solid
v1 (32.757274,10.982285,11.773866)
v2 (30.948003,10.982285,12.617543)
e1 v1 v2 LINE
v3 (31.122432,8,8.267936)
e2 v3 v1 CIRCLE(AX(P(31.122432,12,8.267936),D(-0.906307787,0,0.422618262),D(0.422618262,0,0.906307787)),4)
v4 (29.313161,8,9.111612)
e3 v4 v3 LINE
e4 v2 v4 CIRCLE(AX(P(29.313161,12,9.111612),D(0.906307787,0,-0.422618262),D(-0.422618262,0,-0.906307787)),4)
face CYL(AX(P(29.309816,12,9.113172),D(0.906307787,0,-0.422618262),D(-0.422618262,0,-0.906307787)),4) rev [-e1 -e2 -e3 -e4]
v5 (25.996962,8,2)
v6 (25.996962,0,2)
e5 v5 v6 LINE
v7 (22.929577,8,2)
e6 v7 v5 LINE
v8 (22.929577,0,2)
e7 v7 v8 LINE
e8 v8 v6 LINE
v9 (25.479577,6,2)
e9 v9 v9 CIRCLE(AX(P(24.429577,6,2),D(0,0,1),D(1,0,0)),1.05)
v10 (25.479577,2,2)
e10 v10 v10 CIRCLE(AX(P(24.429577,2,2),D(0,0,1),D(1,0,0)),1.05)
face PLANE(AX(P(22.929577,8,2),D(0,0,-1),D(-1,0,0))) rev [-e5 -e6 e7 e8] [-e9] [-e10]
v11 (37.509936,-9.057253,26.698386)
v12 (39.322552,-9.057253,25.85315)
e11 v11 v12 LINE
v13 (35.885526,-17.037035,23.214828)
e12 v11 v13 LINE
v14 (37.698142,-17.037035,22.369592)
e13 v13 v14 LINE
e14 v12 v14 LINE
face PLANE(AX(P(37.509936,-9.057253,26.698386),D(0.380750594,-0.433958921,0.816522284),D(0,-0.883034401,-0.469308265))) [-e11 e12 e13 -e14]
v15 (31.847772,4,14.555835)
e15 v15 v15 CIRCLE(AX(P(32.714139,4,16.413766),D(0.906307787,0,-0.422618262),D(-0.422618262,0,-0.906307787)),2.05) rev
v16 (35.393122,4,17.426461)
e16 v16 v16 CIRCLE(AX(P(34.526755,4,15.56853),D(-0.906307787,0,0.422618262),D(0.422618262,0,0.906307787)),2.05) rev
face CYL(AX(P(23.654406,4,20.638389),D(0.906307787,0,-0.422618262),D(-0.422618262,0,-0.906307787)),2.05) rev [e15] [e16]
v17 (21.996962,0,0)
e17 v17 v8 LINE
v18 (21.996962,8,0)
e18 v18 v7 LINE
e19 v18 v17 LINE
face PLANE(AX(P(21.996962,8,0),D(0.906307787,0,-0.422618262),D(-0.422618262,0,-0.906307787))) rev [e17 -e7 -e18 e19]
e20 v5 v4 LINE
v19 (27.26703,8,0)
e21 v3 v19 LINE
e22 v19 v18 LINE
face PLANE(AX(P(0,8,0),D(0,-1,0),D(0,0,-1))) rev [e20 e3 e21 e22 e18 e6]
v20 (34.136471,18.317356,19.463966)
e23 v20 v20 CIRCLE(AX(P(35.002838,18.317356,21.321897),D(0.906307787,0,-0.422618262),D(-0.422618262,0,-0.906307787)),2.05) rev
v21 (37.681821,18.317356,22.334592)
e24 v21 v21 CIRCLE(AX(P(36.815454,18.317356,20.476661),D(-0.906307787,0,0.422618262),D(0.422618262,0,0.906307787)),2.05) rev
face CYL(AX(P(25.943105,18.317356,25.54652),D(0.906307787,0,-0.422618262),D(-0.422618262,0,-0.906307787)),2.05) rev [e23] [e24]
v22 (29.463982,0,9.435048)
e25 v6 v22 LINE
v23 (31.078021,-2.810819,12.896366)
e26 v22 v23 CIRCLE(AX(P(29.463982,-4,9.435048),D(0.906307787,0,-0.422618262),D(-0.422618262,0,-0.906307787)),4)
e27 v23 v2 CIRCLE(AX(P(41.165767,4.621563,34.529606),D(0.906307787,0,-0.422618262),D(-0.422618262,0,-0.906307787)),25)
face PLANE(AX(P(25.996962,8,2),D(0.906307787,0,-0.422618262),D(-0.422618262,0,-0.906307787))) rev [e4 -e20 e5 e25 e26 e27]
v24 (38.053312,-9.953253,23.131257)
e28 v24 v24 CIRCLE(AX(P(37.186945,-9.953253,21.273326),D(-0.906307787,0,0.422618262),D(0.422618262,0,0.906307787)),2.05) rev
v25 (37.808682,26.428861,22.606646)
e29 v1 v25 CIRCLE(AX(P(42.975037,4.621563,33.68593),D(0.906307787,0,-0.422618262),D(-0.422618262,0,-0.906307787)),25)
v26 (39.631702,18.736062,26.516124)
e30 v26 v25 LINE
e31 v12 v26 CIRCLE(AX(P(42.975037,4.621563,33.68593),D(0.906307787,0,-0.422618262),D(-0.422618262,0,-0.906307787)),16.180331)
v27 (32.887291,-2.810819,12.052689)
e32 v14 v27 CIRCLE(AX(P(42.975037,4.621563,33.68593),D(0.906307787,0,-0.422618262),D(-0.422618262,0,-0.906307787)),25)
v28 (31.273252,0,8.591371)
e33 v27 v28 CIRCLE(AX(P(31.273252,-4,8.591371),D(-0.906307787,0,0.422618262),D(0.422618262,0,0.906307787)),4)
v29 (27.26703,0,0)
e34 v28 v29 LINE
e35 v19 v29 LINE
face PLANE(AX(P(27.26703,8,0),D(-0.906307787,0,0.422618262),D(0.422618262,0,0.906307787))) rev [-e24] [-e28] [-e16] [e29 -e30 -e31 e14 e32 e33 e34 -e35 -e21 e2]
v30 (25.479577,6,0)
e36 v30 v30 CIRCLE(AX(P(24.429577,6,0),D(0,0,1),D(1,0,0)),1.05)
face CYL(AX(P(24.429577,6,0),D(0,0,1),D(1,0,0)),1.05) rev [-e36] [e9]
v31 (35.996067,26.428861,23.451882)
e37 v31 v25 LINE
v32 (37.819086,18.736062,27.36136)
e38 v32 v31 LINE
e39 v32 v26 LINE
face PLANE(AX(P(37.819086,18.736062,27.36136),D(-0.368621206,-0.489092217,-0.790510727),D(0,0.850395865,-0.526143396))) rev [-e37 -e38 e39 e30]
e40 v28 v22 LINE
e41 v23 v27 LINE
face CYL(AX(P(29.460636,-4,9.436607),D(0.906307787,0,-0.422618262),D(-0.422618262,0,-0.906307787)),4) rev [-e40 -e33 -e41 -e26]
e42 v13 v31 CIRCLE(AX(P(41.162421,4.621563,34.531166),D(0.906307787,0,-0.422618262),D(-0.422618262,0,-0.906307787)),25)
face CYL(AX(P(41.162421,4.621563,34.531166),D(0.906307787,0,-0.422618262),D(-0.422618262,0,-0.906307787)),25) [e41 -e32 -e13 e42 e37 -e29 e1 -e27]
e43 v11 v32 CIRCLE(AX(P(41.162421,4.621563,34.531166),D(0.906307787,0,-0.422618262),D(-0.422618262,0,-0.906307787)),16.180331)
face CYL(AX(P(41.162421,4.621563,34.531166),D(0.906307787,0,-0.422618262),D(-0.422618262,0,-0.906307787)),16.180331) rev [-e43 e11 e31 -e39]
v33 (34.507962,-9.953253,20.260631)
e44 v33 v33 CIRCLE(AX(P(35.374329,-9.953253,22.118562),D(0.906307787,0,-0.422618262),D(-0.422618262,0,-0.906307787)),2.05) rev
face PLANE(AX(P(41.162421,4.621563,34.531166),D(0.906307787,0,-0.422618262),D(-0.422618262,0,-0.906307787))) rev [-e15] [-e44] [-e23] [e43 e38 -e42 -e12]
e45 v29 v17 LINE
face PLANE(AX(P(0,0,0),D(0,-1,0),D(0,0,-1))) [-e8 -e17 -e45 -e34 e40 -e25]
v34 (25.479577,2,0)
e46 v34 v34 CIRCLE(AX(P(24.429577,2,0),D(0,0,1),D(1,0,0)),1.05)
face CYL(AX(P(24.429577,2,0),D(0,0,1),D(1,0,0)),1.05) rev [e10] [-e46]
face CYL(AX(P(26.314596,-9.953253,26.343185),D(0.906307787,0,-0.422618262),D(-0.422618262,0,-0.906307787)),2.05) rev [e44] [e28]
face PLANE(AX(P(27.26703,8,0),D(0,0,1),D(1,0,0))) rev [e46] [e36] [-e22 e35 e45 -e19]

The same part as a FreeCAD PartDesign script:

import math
import FreeCAD as App
import Part
import Sketcher

V = App.Vector
Q = App.Units.Quantity


def edges_at(feature, points):
    """Names of the edges that pass closest to the given points."""
    edges = feature.Shape.Edges
    near = lambda p: min(range(len(edges)), key=lambda i: edges[i].distToShape(Part.Vertex(*p))[0])
    return sorted({f"Edge{near(p) + 1}" for p in points})


def add_polygon(sketch, points):
    """Adds a closed chain of lines whose ends are joined by coincident constraints."""
    first, n = sketch.GeometryCount, len(points)
    for a, b in zip(points, points[1:] + points[:1]):
        sketch.addGeometry(Part.LineSegment(App.Vector(*a, 0), App.Vector(*b, 0)), False)
    for i in range(n):
        sketch.addConstraint(Sketcher.Constraint("Coincident", first + i, 2, first + (i + 1) % n, 1))

doc = App.newDocument("Part")
body = doc.addObject("PartDesign::Body", "Body")

# Sketch on XZ plane
sketch1 = body.newObject("Sketcher::SketchObject", "Sketch")
sketch1.AttachmentSupport = (doc.getObject("XZ_Plane"), [""])
sketch1.MapMode = "FlatFace"
add_polygon(sketch1, [(32.8, 16.5), (34.5, 15.5), (27.3, 0), (22, 0), (22.9, 2), (26, 2)])  # lines 0-5
sketch1.addConstraint([
    Sketcher.Constraint("Horizontal", 2),
    Sketcher.Constraint("Horizontal", 4),
    Sketcher.Constraint("PointOnObject", 1, 2, -1),
    Sketcher.Constraint("Parallel", 1, 3),
    Sketcher.Constraint("Parallel", 3, 5),
    Sketcher.Constraint("Angle", 1, Q("-115 deg")),
    Sketcher.Constraint("Distance", 0, Q("2 mm")),
    Sketcher.Constraint("DistanceY", -1, 1, 3, 2, Q("2 mm")),
    Sketcher.Constraint("DistanceX", 2, 2, 4, 2, Q("4 mm")),
    Sketcher.Constraint("DistanceX", 4, 2, 5, 2, Q("6.763199 mm")),
    Sketcher.Constraint("DistanceX", 2, 2, 2, 1, Q("5.270068 mm")),
    Sketcher.Constraint("DistanceX", -1, 1, 1, 2, Q("27.26703 mm")),
])
pad1 = body.newObject("PartDesign::Pad", "Pad")
pad1.Profile = sketch1
pad1.Length = 8
pad1.Reversed = True

# Sketch on an angled plane
sketch2 = body.newObject("Sketcher::SketchObject", "Sketch001")
sketch2.Placement = App.Placement(V(22.39697, 0, -10.443878), App.Rotation(V(-0.422618262, 0, -0.906307787), V(0, 1, 0), V(0.906307787, 0, -0.422618262), "ZXY"))
sketch2.addGeometry([
    Part.LineSegment(V(-36, 26, 0), V(-41, 19, 0)),
    Part.ArcOfCircle(Part.Circle(V(-49, 5, 0), V(0, 0, 1), 16), math.radians(-58), math.radians(61)),
    Part.LineSegment(V(-40, -9, 0), V(-36, -17, 0)),
    Part.ArcOfCircle(Part.Circle(V(-49, 5, 0), V(0, 0, 1), 25), math.radians(-60), math.radians(61)),
], False)
sketch2.addConstraint([
    Sketcher.Constraint("Coincident", 0, 2, 1, 2),
    Sketcher.Constraint("Coincident", 1, 1, 2, 1),
    Sketcher.Constraint("Coincident", 2, 2, 3, 1),
    Sketcher.Constraint("Coincident", 3, 2, 0, 1),
    Sketcher.Constraint("Coincident", 3, 3, 1, 3),
    Sketcher.Constraint("Radius", 3, Q("25 mm")),
    Sketcher.Constraint("Radius", 1, Q("16.180331 mm")),
    Sketcher.Constraint("DistanceY", 3, 3, 0, 2, Q("14.1145 mm")),
    Sketcher.Constraint("DistanceY", 2, 2, 3, 3, Q("21.658598 mm")),
    Sketcher.Constraint("DistanceY", 0, 2, 3, 2, Q("7.692798 mm")),
    Sketcher.Constraint("DistanceX", 0, 2, -1, 1, Q("40.78085 mm")),
    Sketcher.Constraint("DistanceX", 1, 1, -1, 1, Q("40.049339 mm")),
    Sketcher.Constraint("DistanceY", -1, 1, 3, 2, Q("26.428861 mm")),
])
pad2 = body.newObject("PartDesign::Pad", "Pad001")
pad2.Profile = sketch2
pad2.Length = 2
pad2.Reversed = True

# Sketch on an angled plane
sketch3 = body.newObject("Sketcher::SketchObject", "Sketch002")
sketch3.Placement = App.Placement(V(20.587699, 0, -9.600202), App.Rotation(V(0.422618262, 0, 0.906307787), V(0, 1, 0), V(-0.906307787, 0, 0.422618262), "ZXY"))
sketch3.addGeometry([
    Part.Circle(V(28.7, 4, 0), V(0, 0, 1), 2),  # 0
    Part.Circle(V(34.1, 18.3, 0), V(0, 0, 1), 2),  # 1
    Part.Circle(V(48.1, 24.6, 0), V(0, 0, 1), 2),  # 2
    Part.Circle(V(62.4, 19.2, 0), V(0, 0, 1), 2),  # 3
    Part.Circle(V(68.7, 5.2, 0), V(0, 0, 1), 2),  # 4
    Part.Circle(V(63.3, -9.1, 0), V(0, 0, 1), 2),  # 5
    Part.Circle(V(49.3, -15.4, 0), V(0, 0, 1), 2),  # 6
    Part.Circle(V(35, -10, 0), V(0, 0, 1), 2),  # 7
], False)
sketch3.addConstraint([
    Sketcher.Constraint("Equal", 0, 1),
    Sketcher.Constraint("Equal", 1, 2),
    Sketcher.Constraint("Equal", 2, 3),
    Sketcher.Constraint("Equal", 3, 4),
    Sketcher.Constraint("Equal", 4, 5),
    Sketcher.Constraint("Equal", 5, 6),
    Sketcher.Constraint("Equal", 6, 7),
    Sketcher.Constraint("Diameter", 0, Q("4.1 mm")),
    Sketcher.Constraint("DistanceY", -1, 1, 0, 3, Q("4 mm")),
    Sketcher.Constraint("DistanceY", -1, 1, 2, 3, Q("24.611902 mm")),
    Sketcher.Constraint("DistanceX", 2, 3, 4, 3, Q("20.611902 mm")),
    Sketcher.Constraint("DistanceY", 6, 3, 4, 3, Q("20.611902 mm")),
    Sketcher.Constraint("DistanceX", 0, 3, 6, 3, Q("20.611902 mm")),
    Sketcher.Constraint("DistanceX", -1, 1, 1, 3, Q("34.11704 mm")),
    Sketcher.Constraint("DistanceX", -1, 1, 3, 3, Q("62.387649 mm")),
    Sketcher.Constraint("DistanceY", -1, 1, 3, 3, Q("19.196378 mm")),
    Sketcher.Constraint("DistanceX", -1, 1, 5, 3, Q("63.266672 mm")),
    Sketcher.Constraint("DistanceY", 5, 3, -1, 1, Q("9.07423 mm")),
    Sketcher.Constraint("DistanceX", -1, 1, 6, 3, Q("49.313419 mm")),
    Sketcher.Constraint("DistanceY", 4, 3, 1, 3, Q("13.07423 mm")),
    Sketcher.Constraint("DistanceX", 0, 3, 4, 3, Q("39.980678 mm")),
    Sketcher.Constraint("DistanceX", 7, 3, 5, 3, Q("28.270609 mm")),
    Sketcher.Constraint("DistanceY", 7, 3, 1, 3, Q("28.270609 mm")),
    Sketcher.Constraint("DistanceY", -1, 1, 1, 3, Q("18.317356 mm")),
])
pocket1 = body.newObject("PartDesign::Pocket", "Pocket")
pocket1.Profile = sketch3
pocket1.Type = "ThroughAll"
pocket1.Midplane = True
doc.recompute()

fillet = body.newObject("PartDesign::Fillet", "Fillet")
fillet.Base = (pocket1, edges_at(pocket1, [(31.687, 0, 11.841), (31.602, 8, 11.658)]))
fillet.Radius = 4

# Sketch on XY plane
sketch4 = body.newObject("Sketcher::SketchObject", "Sketch003")
sketch4.AttachmentSupport = (doc.getObject("XY_Plane"), [""])
sketch4.MapMode = "FlatFace"
sketch4.AttachmentOffset = App.Placement(V(0, 0, 2), App.Rotation())
sketch4.addGeometry([
    Part.Circle(V(24.4, 6, 0), V(0, 0, 1), 1.1),
    Part.Circle(V(24.4, 2, 0), V(0, 0, 1), 1.1),
], False)
sketch4.addConstraint([
    Sketcher.Constraint("Equal", 0, 1),
    Sketcher.Constraint("Vertical", 0, 3, 1, 3),
    Sketcher.Constraint("Diameter", 0, Q("2.1 mm")),
    Sketcher.Constraint("DistanceY", -1, 1, 0, 3, Q("6 mm")),
    Sketcher.Constraint("DistanceY", -1, 1, 1, 3, Q("2 mm")),
    Sketcher.Constraint("DistanceX", -1, 1, 0, 3, Q("24.429577 mm")),
])
pocket2 = body.newObject("PartDesign::Pocket", "Pocket001")
pocket2.Profile = sketch4
pocket2.Type = "ThroughAll"

doc.recompute()
